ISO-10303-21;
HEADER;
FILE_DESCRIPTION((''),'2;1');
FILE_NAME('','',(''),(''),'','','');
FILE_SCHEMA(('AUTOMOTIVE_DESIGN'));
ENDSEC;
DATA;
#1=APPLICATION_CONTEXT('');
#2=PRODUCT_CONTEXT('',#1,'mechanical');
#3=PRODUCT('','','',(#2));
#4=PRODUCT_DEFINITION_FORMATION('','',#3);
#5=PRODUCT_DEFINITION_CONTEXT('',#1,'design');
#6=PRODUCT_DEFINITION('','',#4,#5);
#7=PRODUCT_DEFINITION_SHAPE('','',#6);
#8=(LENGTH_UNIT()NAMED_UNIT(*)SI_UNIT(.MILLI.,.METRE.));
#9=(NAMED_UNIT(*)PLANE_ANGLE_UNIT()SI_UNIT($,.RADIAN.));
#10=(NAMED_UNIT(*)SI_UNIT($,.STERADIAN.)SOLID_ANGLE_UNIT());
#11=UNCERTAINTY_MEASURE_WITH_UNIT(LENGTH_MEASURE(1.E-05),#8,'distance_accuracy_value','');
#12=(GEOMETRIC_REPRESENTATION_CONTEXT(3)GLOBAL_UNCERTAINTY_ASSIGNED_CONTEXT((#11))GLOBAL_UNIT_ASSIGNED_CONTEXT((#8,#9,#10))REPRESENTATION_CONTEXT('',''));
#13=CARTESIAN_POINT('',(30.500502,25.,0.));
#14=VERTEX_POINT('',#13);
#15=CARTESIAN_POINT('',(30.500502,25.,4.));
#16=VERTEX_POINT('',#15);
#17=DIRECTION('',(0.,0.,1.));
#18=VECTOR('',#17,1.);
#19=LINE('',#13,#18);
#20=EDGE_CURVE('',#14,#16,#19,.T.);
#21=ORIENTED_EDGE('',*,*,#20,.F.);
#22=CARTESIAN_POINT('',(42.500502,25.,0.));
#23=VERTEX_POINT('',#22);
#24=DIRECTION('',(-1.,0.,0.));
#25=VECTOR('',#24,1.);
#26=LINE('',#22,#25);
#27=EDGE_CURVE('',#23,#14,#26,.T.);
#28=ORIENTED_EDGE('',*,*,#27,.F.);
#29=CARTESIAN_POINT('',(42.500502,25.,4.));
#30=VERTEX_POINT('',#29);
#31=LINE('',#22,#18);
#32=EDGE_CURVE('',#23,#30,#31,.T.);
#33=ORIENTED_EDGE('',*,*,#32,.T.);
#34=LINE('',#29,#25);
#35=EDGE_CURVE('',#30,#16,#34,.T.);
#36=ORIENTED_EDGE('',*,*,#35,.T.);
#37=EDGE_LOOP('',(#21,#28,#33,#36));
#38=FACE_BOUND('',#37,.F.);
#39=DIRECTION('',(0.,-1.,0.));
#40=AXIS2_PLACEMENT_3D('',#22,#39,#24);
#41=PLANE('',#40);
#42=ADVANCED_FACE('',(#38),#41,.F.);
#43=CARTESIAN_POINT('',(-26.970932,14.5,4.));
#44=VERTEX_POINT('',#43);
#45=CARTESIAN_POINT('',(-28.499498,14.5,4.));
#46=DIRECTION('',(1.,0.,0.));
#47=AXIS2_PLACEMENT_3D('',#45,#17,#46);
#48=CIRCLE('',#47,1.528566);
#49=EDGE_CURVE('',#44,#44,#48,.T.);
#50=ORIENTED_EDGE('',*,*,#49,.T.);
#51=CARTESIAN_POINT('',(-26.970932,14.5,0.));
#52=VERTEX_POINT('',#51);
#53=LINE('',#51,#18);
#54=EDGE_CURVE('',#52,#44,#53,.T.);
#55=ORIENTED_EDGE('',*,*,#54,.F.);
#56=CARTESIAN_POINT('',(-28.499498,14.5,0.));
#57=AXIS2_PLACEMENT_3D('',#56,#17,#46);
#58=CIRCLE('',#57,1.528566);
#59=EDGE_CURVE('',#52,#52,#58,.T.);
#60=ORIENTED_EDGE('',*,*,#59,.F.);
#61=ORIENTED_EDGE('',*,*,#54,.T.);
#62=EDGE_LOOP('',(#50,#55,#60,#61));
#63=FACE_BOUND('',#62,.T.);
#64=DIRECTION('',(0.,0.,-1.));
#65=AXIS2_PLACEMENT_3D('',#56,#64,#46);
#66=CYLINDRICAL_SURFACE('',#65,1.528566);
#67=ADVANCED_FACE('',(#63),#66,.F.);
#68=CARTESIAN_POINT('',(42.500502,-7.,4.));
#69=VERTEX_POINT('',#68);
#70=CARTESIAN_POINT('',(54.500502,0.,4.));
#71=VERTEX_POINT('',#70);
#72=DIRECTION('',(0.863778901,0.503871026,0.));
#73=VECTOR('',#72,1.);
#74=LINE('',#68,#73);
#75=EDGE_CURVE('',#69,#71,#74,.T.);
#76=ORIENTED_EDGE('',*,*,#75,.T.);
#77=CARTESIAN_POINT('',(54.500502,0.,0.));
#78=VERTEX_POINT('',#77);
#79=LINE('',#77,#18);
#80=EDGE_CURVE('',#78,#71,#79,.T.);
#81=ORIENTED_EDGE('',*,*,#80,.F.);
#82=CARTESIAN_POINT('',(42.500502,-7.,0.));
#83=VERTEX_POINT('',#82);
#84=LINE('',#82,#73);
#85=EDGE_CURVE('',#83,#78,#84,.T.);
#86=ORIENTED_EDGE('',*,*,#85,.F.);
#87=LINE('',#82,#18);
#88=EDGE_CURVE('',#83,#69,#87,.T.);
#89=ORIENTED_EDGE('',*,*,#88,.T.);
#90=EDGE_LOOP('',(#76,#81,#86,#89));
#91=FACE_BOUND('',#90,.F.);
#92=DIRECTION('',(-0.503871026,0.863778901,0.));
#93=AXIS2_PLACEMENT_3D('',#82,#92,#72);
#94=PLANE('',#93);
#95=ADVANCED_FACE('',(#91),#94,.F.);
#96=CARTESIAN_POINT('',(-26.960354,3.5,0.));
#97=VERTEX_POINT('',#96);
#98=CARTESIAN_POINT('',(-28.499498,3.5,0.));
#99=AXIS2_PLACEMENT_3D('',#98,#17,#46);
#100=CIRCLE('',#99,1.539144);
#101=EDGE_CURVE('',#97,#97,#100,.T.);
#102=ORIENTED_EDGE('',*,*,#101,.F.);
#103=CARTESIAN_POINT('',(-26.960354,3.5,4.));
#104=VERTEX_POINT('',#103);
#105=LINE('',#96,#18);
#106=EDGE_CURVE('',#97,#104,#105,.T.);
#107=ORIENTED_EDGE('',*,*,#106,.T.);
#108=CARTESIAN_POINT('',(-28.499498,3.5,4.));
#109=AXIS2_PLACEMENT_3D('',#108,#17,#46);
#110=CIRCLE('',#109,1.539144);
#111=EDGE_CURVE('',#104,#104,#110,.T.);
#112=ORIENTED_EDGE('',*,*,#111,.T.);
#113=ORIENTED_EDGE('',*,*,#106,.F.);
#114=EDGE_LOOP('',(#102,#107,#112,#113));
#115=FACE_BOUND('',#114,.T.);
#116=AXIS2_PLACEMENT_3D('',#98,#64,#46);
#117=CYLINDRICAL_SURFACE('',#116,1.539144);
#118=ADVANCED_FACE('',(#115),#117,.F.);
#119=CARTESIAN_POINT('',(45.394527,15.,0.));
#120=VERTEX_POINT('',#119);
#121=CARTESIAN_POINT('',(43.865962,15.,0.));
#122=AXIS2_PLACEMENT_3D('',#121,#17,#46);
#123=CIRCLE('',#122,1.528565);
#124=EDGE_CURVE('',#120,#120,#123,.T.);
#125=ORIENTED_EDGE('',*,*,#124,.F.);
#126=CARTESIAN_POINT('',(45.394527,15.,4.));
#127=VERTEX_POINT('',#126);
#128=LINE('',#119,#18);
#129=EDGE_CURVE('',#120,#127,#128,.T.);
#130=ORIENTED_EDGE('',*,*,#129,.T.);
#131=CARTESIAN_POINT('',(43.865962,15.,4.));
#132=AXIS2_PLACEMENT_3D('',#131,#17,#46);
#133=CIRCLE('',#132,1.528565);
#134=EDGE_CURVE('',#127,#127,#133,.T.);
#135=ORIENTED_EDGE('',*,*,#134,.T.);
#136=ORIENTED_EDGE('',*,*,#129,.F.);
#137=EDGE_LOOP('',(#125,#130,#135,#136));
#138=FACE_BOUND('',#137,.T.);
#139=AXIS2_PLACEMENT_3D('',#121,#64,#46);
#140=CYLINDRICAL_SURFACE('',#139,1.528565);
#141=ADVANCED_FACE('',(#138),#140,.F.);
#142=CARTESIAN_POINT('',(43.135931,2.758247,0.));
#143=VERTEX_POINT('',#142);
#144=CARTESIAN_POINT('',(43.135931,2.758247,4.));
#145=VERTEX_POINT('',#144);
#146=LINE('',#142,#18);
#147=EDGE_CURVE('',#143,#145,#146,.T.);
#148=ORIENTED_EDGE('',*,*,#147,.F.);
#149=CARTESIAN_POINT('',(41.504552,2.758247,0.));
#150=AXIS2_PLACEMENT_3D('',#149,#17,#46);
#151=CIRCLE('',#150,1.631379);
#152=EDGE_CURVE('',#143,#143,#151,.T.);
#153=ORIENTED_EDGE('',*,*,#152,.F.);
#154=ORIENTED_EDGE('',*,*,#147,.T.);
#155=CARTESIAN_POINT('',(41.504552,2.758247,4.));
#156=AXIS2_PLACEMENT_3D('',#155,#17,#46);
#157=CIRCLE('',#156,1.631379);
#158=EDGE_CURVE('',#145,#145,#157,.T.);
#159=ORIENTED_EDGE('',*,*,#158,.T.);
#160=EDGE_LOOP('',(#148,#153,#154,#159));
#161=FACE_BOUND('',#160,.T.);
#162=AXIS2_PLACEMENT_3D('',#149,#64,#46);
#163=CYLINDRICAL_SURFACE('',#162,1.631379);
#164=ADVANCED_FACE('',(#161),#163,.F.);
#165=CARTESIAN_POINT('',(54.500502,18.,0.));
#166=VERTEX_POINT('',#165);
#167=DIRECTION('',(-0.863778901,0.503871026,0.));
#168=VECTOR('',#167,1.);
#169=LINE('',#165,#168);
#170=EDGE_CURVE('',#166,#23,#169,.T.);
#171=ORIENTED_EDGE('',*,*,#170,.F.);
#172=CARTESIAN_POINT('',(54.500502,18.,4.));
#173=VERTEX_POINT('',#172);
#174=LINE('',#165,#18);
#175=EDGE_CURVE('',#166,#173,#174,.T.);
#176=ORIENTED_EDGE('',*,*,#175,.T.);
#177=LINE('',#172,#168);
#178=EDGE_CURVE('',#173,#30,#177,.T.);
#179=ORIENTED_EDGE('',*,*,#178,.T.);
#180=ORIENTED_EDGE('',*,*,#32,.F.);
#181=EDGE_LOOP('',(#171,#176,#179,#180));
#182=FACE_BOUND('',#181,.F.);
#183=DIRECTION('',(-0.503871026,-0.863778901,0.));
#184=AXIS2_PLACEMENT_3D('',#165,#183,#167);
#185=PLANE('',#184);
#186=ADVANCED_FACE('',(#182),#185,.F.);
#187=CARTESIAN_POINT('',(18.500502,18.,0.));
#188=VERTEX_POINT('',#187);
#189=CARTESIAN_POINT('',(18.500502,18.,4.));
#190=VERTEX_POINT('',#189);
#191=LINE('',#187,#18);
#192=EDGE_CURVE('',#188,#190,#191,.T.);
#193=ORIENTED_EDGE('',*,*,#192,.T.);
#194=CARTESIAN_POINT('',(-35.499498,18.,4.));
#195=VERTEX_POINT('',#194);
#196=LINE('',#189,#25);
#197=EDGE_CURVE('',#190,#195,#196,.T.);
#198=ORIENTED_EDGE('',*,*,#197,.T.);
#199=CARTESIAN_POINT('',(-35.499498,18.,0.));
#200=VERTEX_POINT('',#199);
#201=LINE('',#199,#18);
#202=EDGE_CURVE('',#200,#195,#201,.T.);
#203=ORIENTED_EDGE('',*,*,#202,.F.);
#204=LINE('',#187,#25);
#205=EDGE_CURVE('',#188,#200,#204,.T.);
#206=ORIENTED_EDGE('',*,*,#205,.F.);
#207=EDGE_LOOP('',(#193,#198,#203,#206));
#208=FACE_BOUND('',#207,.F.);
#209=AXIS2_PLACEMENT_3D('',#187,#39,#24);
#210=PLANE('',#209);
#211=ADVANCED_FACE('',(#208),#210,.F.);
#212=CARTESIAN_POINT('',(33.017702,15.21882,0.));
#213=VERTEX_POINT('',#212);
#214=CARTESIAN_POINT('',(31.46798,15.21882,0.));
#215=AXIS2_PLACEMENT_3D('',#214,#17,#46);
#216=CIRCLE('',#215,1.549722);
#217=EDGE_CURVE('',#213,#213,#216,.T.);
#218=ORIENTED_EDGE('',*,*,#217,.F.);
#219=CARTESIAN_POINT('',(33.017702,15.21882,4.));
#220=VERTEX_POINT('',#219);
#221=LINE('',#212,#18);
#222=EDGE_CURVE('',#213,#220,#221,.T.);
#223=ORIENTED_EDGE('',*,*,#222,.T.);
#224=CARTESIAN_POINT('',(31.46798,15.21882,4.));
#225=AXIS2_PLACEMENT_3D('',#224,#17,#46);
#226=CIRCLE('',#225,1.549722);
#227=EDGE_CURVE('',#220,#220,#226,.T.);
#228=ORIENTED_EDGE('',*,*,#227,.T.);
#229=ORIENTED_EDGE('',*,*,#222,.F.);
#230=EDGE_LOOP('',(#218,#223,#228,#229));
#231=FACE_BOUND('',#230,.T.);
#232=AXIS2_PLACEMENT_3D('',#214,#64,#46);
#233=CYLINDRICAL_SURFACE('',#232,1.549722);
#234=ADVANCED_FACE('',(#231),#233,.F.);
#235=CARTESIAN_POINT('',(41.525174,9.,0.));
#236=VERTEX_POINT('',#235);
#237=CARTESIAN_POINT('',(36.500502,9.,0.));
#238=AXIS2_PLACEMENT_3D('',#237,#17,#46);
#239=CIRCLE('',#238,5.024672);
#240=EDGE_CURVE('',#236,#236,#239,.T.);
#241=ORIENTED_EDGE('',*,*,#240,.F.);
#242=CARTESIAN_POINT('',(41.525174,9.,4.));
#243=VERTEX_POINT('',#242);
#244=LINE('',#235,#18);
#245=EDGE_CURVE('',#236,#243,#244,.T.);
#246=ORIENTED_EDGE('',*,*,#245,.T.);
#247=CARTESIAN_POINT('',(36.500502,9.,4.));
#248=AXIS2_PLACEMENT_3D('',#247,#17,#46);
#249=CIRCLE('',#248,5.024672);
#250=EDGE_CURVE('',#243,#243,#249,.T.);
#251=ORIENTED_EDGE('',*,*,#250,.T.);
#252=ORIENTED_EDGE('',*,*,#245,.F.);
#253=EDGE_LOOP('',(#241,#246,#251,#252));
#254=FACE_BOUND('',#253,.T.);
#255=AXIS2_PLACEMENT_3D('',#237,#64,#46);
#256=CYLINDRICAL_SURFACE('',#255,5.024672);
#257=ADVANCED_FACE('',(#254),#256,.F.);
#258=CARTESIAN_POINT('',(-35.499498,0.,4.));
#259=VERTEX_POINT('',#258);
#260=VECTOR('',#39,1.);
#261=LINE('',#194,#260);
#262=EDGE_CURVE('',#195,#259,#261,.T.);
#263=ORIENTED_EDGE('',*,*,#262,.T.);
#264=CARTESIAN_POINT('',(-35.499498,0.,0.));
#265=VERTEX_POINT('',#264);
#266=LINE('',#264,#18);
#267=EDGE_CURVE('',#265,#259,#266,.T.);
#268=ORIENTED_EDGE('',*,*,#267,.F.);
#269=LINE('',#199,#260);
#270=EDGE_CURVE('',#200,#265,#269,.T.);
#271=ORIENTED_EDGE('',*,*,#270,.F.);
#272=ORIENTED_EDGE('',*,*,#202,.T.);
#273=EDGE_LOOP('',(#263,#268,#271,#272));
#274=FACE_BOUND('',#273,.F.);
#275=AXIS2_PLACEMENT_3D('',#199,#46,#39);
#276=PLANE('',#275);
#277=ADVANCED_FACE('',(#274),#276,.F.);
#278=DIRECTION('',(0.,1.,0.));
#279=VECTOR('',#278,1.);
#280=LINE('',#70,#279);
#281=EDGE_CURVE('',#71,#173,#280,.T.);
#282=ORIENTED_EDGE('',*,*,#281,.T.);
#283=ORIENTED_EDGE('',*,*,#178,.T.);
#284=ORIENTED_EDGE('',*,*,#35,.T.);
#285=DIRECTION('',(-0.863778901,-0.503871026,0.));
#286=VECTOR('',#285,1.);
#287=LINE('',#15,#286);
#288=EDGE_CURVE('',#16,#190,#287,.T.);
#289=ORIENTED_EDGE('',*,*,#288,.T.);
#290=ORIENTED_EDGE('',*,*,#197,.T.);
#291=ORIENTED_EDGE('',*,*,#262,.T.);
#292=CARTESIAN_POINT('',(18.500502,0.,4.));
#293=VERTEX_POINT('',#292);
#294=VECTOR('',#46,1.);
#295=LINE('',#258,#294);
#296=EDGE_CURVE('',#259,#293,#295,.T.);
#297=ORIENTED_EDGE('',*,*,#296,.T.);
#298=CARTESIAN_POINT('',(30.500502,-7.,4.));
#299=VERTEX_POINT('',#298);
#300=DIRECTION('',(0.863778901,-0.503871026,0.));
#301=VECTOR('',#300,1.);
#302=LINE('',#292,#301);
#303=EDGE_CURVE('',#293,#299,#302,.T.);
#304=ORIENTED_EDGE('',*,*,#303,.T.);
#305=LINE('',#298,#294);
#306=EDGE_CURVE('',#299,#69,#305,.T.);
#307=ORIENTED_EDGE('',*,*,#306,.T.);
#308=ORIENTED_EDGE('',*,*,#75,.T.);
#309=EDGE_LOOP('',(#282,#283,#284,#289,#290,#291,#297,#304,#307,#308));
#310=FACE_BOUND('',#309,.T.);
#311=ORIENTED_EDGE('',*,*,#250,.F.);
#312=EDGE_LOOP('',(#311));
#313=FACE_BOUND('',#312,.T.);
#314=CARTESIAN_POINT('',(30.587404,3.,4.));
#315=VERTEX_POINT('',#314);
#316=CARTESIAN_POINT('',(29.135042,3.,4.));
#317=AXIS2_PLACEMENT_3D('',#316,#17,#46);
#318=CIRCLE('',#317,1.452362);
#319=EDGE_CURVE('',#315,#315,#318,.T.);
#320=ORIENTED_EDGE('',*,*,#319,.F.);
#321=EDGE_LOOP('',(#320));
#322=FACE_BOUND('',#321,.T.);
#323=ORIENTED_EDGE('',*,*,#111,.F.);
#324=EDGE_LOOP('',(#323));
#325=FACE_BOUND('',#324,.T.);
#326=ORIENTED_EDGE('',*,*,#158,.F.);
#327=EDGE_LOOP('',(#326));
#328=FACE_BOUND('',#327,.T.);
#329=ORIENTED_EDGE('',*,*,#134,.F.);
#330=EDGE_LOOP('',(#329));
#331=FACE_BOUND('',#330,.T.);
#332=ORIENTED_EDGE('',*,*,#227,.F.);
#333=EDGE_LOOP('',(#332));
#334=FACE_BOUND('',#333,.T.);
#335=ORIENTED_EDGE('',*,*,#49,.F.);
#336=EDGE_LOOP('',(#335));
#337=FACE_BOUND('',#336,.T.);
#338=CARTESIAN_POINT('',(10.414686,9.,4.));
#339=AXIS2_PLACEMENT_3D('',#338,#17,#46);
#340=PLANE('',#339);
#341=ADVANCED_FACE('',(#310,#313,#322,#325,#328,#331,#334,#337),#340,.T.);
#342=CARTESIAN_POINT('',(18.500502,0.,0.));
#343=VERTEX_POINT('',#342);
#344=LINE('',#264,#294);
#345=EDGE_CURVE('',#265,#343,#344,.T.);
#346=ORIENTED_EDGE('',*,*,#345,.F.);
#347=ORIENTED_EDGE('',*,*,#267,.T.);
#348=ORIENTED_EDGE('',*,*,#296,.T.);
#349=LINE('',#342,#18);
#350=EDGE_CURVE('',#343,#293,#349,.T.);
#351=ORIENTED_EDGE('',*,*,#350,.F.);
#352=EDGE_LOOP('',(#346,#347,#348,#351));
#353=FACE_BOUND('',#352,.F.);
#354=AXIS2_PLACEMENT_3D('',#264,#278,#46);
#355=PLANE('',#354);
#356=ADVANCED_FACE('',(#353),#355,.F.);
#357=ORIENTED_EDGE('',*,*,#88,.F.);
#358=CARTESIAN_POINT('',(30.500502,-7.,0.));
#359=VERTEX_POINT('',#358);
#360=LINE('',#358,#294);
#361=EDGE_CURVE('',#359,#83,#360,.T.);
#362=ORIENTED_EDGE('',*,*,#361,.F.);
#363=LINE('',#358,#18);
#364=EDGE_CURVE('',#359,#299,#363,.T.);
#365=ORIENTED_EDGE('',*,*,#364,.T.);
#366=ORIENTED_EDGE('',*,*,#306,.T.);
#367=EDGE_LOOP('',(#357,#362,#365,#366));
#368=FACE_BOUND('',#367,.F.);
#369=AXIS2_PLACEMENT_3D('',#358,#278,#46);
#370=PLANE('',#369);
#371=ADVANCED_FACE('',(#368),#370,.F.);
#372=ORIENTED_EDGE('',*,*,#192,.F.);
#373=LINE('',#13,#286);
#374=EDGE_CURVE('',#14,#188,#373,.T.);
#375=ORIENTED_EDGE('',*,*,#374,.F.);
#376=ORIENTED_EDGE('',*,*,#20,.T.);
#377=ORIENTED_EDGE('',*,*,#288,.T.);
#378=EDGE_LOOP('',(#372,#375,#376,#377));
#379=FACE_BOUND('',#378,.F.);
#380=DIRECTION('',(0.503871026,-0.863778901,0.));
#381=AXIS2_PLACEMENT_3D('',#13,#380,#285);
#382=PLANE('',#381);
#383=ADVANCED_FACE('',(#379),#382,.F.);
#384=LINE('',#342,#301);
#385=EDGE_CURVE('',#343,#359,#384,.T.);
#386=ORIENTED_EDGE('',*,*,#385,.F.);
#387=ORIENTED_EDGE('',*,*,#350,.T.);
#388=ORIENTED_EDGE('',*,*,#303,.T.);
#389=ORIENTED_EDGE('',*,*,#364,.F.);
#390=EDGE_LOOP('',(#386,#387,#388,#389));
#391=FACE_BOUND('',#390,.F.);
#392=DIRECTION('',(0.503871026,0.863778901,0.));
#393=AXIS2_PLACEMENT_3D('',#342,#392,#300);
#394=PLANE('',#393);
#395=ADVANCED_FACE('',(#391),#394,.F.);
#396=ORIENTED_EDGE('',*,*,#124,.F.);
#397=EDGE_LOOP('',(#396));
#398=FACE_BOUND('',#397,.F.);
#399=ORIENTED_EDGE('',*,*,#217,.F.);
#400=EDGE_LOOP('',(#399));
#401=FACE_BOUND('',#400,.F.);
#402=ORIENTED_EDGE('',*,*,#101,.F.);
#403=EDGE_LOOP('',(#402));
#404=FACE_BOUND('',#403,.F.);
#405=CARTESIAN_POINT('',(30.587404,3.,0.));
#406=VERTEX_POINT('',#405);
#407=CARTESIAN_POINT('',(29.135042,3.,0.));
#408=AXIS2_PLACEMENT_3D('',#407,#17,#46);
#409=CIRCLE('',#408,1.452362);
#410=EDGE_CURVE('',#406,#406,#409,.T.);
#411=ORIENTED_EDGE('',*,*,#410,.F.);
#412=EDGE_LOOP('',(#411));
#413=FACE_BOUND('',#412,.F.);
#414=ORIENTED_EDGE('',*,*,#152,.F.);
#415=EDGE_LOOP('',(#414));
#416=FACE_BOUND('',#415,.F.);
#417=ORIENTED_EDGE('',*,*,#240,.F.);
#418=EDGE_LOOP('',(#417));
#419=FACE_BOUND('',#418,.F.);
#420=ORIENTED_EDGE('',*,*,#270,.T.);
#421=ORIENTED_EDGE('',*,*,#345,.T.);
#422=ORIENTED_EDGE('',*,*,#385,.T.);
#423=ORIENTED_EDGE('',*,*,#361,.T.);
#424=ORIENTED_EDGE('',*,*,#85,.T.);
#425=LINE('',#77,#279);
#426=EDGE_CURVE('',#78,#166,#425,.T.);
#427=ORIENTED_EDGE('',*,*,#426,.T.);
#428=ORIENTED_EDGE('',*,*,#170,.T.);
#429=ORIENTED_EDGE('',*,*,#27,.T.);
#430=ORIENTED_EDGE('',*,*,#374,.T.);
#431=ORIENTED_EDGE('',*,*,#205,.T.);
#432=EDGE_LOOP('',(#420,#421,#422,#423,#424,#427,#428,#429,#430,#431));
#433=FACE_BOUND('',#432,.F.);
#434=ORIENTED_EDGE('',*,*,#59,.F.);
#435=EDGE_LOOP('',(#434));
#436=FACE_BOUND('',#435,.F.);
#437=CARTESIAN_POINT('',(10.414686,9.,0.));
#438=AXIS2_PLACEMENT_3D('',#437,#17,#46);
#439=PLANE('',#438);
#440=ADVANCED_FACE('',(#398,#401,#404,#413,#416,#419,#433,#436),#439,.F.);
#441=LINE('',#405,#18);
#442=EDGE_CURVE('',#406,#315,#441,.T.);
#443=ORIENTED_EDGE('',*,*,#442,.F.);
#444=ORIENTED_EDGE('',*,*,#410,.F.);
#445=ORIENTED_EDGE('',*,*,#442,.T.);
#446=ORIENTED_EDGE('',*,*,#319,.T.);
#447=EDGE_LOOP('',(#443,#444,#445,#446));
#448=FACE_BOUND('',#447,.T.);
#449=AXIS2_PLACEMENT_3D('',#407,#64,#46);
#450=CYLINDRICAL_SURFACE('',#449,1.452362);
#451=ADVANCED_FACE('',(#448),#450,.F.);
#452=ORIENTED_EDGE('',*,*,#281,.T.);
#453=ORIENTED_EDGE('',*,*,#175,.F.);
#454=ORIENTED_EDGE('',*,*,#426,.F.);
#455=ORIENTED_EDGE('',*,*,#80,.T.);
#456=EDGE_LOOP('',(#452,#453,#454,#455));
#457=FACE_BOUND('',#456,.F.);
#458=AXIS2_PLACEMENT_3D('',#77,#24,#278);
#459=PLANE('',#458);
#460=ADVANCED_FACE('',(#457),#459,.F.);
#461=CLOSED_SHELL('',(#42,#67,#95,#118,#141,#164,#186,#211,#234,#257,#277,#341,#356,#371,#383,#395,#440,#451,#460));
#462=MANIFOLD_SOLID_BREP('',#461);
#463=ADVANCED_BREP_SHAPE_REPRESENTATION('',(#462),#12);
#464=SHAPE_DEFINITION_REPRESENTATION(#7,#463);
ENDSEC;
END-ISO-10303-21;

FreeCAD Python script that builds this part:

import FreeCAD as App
import Part
import Sketcher

V = App.Vector
Q = App.Units.Quantity


def add_polygon(sketch, points):
    """Adds a closed chain of lines whose ends are joined by coincident constraints."""
    first, n = sketch.GeometryCount, len(points)
    for a, b in zip(points, points[1:] + points[:1]):
        sketch.addGeometry(Part.LineSegment(App.Vector(*a, 0), App.Vector(*b, 0)), False)
    for i in range(n):
        sketch.addConstraint(Sketcher.Constraint("Coincident", first + i, 2, first + (i + 1) % n, 1))

doc = App.newDocument("Part")
body = doc.addObject("PartDesign::Body", "Body")

# Sketch on XY plane
sketch1 = body.newObject("Sketcher::SketchObject", "Sketch")
sketch1.AttachmentSupport = (doc.getObject("XY_Plane"), [""])
sketch1.MapMode = "FlatFace"
add_polygon(sketch1, [(18.5, 18), (-35.5, 18), (-35.5, 0), (18.5, 0), (30.5, -7), (42.5, -7), (54.5, 0), (54.5, 18), (42.5, 25), (30.5, 25)])  # lines 0-9
sketch1.addGeometry(Part.Circle(V(-28.5, 3.5, 0), V(0, 0, 1), 1.5), False)  # 10
sketch1.addGeometry(Part.Circle(V(29.1, 3, 0), V(0, 0, 1), 1.5), False)  # 11
sketch1.addGeometry(Part.Circle(V(41.5, 2.8, 0), V(0, 0, 1), 1.6), False)  # 12
sketch1.addGeometry(Part.Circle(V(-28.5, 14.5, 0), V(0, 0, 1), 1.5), False)  # 13
sketch1.addGeometry(Part.Circle(V(36.5, 9, 0), V(0, 0, 1), 5), False)  # 14
sketch1.addGeometry(Part.Circle(V(31.5, 15.2, 0), V(0, 0, 1), 1.5), False)  # 15
sketch1.addGeometry(Part.Circle(V(43.9, 15, 0), V(0, 0, 1), 1.5), False)  # 16
sketch1.addConstraint([
    Sketcher.Constraint("Horizontal", 0),
    Sketcher.Constraint("Vertical", 1),
    Sketcher.Constraint("Horizontal", 2),
    Sketcher.Constraint("Horizontal", 4),
    Sketcher.Constraint("Vertical", 6),
    Sketcher.Constraint("Horizontal", 8),
    Sketcher.Constraint("Equal", 13, 16),
    Sketcher.Constraint("PointOnObject", 1, 2, -1),
    Sketcher.Constraint("PointOnObject", 5, 2, -1),
    Sketcher.Constraint("Parallel", 3, 7),
    Sketcher.Constraint("Parallel", 5, 9),
    Sketcher.Constraint("Horizontal", 0, 2, 6, 2),
    Sketcher.Constraint("Vertical", 10, 3, 13, 3),
    Sketcher.Constraint("Vertical", 4, 2, 7, 2),
    Sketcher.Constraint("Vertical", 3, 2, 8, 2),
    Sketcher.Constraint("Vertical", 2, 2, 9, 2),
    Sketcher.Constraint("DistanceX", 0, 2, 0, 1, Q("54 mm")),
    Sketcher.Constraint("DistanceX", 4, 1, 4, 2, Q("12 mm")),
    Sketcher.Constraint("DistanceY", 1, 2, 1, 1, Q("18 mm")),
    Sketcher.Constraint("DistanceY", -1, 1, 11, 3, Q("3 mm")),
    Sketcher.Constraint("DistanceY", -1, 1, 14, 3, Q("9 mm")),
    Sketcher.Constraint("DistanceY", -1, 1, 16, 3, Q("15 mm")),
    Sketcher.Constraint("DistanceY", 3, 2, -1, 1, Q("7 mm")),
    Sketcher.Constraint("DistanceY", 10, 3, 13, 3, Q("11 mm")),
    Sketcher.Constraint("DistanceX", 10, 3, 14, 3, Q("65 mm")),
    Sketcher.Constraint("DistanceX", 0, 2, 13, 3, Q("7 mm")),
    Sketcher.Constraint("DistanceX", 2, 2, 3, 2, Q("12 mm")),
    Sketcher.Constraint("DistanceY", -1, 1, 10, 3, Q("3.5 mm")),
    Sketcher.Constraint("Diameter", 10, Q("3.078288 mm")),
    Sketcher.Constraint("Diameter", 16, Q("3.05713 mm")),
    Sketcher.Constraint("Diameter", 11, Q("2.904724 mm")),
    Sketcher.Constraint("Diameter", 12, Q("3.262758 mm")),
    Sketcher.Constraint("Diameter", 14, Q("10.049344 mm")),
    Sketcher.Constraint("Diameter", 15, Q("3.099444 mm")),
    Sketcher.Constraint("DistanceX", -1, 1, 14, 3, Q("36.500502 mm")),
    Sketcher.Constraint("DistanceX", -1, 1, 11, 3, Q("29.135042 mm")),
    Sketcher.Constraint("DistanceX", -1, 1, 12, 3, Q("41.504552 mm")),
    Sketcher.Constraint("DistanceX", -1, 1, 15, 3, Q("31.46798 mm")),
    Sketcher.Constraint("DistanceY", -1, 1, 15, 3, Q("15.21882 mm")),
    Sketcher.Constraint("DistanceX", 14, 3, 16, 3, Q("7.36546 mm")),
    Sketcher.Constraint("DistanceY", -1, 1, 12, 3, Q("2.758247 mm")),
])
pad1 = body.newObject("PartDesign::Pad", "Pad")
pad1.Profile = sketch1
pad1.Length = 4

doc.recompute()
